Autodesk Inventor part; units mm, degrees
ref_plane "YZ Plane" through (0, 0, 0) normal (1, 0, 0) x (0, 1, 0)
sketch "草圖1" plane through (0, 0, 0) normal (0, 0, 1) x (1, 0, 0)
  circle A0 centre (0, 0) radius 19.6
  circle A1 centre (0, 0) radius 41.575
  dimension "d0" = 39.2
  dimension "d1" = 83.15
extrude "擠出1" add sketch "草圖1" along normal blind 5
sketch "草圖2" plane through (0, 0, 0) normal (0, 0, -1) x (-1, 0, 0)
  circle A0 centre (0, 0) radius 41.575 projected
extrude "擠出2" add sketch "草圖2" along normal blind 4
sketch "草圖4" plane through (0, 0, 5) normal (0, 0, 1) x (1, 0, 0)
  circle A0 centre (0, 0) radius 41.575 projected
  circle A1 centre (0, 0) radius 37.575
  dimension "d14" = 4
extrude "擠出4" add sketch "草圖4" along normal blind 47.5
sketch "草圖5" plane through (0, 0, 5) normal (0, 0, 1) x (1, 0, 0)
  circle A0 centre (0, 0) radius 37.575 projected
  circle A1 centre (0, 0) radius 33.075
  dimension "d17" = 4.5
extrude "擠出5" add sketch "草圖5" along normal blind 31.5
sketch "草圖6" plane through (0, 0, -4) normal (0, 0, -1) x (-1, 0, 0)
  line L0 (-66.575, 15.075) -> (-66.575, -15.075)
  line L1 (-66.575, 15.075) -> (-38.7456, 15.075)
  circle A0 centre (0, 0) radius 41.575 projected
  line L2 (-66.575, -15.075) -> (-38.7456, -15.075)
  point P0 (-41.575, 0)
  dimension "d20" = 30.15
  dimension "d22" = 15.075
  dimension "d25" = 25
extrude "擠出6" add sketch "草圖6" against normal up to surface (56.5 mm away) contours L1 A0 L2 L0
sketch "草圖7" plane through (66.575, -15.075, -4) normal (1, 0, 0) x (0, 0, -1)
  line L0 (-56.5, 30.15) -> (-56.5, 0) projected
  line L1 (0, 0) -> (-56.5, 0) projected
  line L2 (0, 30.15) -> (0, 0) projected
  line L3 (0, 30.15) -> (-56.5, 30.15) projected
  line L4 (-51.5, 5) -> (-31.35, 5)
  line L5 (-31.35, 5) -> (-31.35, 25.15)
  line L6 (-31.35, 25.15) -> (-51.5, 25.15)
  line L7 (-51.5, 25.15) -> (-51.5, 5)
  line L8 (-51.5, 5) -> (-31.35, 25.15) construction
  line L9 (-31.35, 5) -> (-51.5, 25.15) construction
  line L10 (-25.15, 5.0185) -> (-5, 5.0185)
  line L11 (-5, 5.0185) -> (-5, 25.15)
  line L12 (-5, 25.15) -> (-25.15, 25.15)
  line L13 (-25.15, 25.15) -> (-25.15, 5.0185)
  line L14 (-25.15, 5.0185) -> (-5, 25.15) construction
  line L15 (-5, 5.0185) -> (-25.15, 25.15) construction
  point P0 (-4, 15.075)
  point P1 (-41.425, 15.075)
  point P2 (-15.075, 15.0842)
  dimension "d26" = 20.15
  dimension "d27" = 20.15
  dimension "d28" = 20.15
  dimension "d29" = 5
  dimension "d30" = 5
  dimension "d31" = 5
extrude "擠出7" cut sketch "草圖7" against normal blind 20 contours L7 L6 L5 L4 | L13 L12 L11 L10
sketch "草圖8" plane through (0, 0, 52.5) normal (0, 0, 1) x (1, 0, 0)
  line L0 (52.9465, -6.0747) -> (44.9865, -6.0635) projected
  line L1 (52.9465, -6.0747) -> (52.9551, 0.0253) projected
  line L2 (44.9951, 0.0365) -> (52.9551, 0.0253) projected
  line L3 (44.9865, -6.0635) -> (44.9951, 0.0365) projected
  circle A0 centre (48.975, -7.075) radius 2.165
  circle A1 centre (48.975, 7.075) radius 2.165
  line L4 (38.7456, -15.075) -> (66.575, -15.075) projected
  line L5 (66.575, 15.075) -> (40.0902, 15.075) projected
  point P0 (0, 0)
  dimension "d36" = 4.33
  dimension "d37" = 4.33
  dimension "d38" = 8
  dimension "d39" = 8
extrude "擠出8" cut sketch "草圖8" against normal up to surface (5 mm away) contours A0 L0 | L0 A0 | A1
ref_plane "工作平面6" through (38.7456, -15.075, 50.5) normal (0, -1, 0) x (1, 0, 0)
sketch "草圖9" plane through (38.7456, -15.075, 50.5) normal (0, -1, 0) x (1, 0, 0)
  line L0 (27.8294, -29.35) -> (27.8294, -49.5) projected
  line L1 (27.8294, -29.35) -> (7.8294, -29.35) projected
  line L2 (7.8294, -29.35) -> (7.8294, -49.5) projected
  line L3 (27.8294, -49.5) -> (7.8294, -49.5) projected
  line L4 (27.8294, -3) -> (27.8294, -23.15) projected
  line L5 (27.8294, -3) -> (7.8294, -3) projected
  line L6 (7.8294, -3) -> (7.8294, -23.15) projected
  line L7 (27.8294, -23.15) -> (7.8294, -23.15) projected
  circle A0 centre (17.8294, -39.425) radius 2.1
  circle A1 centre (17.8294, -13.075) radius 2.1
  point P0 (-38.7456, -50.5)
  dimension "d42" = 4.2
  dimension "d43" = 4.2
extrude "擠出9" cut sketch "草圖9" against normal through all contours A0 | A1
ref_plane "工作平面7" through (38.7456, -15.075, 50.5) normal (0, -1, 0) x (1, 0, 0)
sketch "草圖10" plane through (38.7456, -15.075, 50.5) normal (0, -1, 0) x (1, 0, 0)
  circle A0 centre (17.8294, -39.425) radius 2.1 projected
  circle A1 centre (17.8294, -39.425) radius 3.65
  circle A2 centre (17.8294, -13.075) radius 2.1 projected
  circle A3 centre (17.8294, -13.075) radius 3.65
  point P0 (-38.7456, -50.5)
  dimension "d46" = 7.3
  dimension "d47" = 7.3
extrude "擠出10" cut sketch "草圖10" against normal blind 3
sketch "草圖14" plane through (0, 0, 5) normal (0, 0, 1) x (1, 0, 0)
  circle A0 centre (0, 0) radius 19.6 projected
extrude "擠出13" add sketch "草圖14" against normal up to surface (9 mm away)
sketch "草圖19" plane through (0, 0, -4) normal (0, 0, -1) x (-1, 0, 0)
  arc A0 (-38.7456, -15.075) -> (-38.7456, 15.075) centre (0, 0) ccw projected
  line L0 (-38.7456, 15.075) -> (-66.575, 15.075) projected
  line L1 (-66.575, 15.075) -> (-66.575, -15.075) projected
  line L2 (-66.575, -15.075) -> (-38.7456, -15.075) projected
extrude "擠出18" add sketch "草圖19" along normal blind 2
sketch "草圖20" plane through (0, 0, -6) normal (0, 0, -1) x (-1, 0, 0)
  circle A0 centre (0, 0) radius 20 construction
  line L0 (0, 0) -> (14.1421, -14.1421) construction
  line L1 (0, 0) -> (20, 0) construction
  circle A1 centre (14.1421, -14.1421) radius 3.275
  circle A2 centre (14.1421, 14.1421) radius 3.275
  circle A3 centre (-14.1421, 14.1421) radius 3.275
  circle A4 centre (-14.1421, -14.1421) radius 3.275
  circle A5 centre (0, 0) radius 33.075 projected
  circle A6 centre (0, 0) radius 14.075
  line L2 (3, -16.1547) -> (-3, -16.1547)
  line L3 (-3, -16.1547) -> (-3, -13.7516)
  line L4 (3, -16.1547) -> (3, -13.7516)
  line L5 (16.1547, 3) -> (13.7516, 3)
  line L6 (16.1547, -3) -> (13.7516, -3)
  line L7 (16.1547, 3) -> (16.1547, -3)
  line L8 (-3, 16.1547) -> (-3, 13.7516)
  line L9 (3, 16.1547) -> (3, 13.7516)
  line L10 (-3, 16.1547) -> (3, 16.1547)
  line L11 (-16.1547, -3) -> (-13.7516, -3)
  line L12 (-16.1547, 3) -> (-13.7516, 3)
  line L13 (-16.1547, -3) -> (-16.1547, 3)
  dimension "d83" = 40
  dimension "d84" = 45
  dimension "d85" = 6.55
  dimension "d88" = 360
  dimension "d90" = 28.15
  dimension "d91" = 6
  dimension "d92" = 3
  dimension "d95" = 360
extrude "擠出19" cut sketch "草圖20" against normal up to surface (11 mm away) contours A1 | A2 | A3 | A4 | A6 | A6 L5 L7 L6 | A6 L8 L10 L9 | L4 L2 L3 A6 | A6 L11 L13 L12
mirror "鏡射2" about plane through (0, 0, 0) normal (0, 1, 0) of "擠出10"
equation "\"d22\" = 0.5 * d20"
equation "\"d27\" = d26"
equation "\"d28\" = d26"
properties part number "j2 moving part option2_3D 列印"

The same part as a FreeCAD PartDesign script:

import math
import FreeCAD as App
import Part
import Sketcher
from FreeCAD import Vector
Q = App.Units.Quantity


def add_polygon(sketch, points):
    """Adds a closed chain of lines whose ends are joined by coincident constraints."""
    first, n = sketch.GeometryCount, len(points)
    for a, b in zip(points, points[1:] + points[:1]):
        sketch.addGeometry(Part.LineSegment(App.Vector(*a, 0), App.Vector(*b, 0)), False)
    for i in range(n):
        sketch.addConstraint(Sketcher.Constraint("Coincident", first + i, 2, first + (i + 1) % n, 1))

doc = App.newDocument("Part")
body = doc.addObject("PartDesign::Body", "Body")

# Sketch on XY plane
sketch1 = body.newObject("Sketcher::SketchObject", "Sketch")
sketch1.AttachmentSupport = (doc.getObject("XY_Plane"), [""])
sketch1.MapMode = "FlatFace"
sketch1.addGeometry(Part.Circle(Vector(0, 0, 0), Vector(0, 0, 1), 42), False)
sketch1.addGeometry(Part.Circle(Vector(0, 0, 0), Vector(0, 0, 1), 20), False)
sketch1.addConstraint(Sketcher.Constraint("Coincident", 0, 3, -1, 1))
sketch1.addConstraint(Sketcher.Constraint("Coincident", 1, 3, -1, 1))
sketch1.addConstraint(Sketcher.Constraint("Diameter", 1, Q("39.2 mm")))
sketch1.addConstraint(Sketcher.Constraint("Diameter", 0, Q("83.15 mm")))
pad1 = body.newObject("PartDesign::Pad", "Pad")
pad1.Profile = sketch1
pad1.Length = 5

# Sketch on XY plane
sketch2 = body.newObject("Sketcher::SketchObject", "Sketch001")
sketch2.AttachmentSupport = (doc.getObject("XY_Plane"), [""])
sketch2.MapMode = "FlatFace"
sketch2.addGeometry(Part.Circle(Vector(0, 0, 0), Vector(0, 0, 1), 42), False)
sketch2.addConstraint(Sketcher.Constraint("Coincident", 0, 3, -1, 1))
sketch2.addConstraint(Sketcher.Constraint("Diameter", 0, Q("83.15 mm")))
pad2 = body.newObject("PartDesign::Pad", "Pad001")
pad2.Profile = sketch2
pad2.Length = 4
pad2.Reversed = True

# Sketch on XY plane
sketch3 = body.newObject("Sketcher::SketchObject", "Sketch002")
sketch3.AttachmentSupport = (doc.getObject("XY_Plane"), [""])
sketch3.MapMode = "FlatFace"
sketch3.AttachmentOffset = App.Placement(Vector(0, 0, 5), App.Rotation())
sketch3.addGeometry(Part.Circle(Vector(0, 0, 0), Vector(0, 0, 1), 42), False)
sketch3.addGeometry(Part.Circle(Vector(0, 0, 0), Vector(0, 0, 1), 38), False)
sketch3.addConstraint(Sketcher.Constraint("Coincident", 0, 3, -1, 1))
sketch3.addConstraint(Sketcher.Constraint("Coincident", 1, 3, -1, 1))
sketch3.addConstraint(Sketcher.Constraint("Diameter", 0, Q("83.15 mm")))
sketch3.addConstraint(Sketcher.Constraint("Diameter", 1, Q("75.15 mm")))
pad3 = body.newObject("PartDesign::Pad", "Pad002")
pad3.Profile = sketch3
pad3.Length = 47.5

# Sketch on XY plane
sketch4 = body.newObject("Sketcher::SketchObject", "Sketch003")
sketch4.AttachmentSupport = (doc.getObject("XY_Plane"), [""])
sketch4.MapMode = "FlatFace"
sketch4.AttachmentOffset = App.Placement(Vector(0, 0, 5), App.Rotation())
sketch4.addGeometry(Part.Circle(Vector(0, 0, 0), Vector(0, 0, 1), 38), False)
sketch4.addGeometry(Part.Circle(Vector(0, 0, 0), Vector(0, 0, 1), 33), False)
sketch4.addConstraint(Sketcher.Constraint("Coincident", 0, 3, -1, 1))
sketch4.addConstraint(Sketcher.Constraint("Coincident", 1, 3, -1, 1))
sketch4.addConstraint(Sketcher.Constraint("Diameter", 0, Q("75.15 mm")))
sketch4.addConstraint(Sketcher.Constraint("Diameter", 1, Q("66.15 mm")))
pad4 = body.newObject("PartDesign::Pad", "Pad003")
pad4.Profile = sketch4
pad4.Length = 31.5

# Sketch on XY plane
sketch5 = body.newObject("Sketcher::SketchObject", "Sketch004")
sketch5.AttachmentSupport = (doc.getObject("XY_Plane"), [""])
sketch5.MapMode = "FlatFace"
sketch5.AttachmentOffset = App.Placement(Vector(0, 0, -4), App.Rotation())
sketch5.addGeometry(Part.LineSegment(Vector(39, 15, 0), Vector(67, 15, 0)), False)
sketch5.addGeometry(Part.LineSegment(Vector(67, 15, 0), Vector(67, -15, 0)), False)
sketch5.addGeometry(Part.LineSegment(Vector(67, -15, 0), Vector(39, -15, 0)), False)
sketch5.addGeometry(Part.ArcOfCircle(Part.Circle(Vector(0, 0, 0), Vector(0, 0, 1), 42), math.radians(-21), math.radians(21)), False)
sketch5.addConstraint(Sketcher.Constraint("Coincident", 0, 2, 1, 1))
sketch5.addConstraint(Sketcher.Constraint("Coincident", 1, 2, 2, 1))
sketch5.addConstraint(Sketcher.Constraint("Coincident", 2, 2, 3, 1))
sketch5.addConstraint(Sketcher.Constraint("Coincident", 3, 2, 0, 1))
sketch5.addConstraint(Sketcher.Constraint("Horizontal", 0))
sketch5.addConstraint(Sketcher.Constraint("Vertical", 1))
sketch5.addConstraint(Sketcher.Constraint("Horizontal", 2))
sketch5.addConstraint(Sketcher.Constraint("Coincident", 3, 3, -1, 1))
sketch5.addConstraint(Sketcher.Constraint("Vertical", 2, 2, 3, 2))
sketch5.addConstraint(Sketcher.Constraint("DistanceY", 1, 2, 1, 1, Q("30.15 mm")))
sketch5.addConstraint(Sketcher.Constraint("Radius", 3, Q("41.575 mm")))
sketch5.addConstraint(Sketcher.Constraint("DistanceX", 0, 1, 0, 2, Q("27.8294 mm")))
pad5 = body.newObject("PartDesign::Pad", "Pad004")
pad5.Profile = sketch5
pad5.Length = 56.5

# Sketch on YZ plane
sketch6 = body.newObject("Sketcher::SketchObject", "Sketch005")
sketch6.AttachmentSupport = (doc.getObject("YZ_Plane"), [""])
sketch6.MapMode = "FlatFace"
sketch6.AttachmentOffset = App.Placement(Vector(0, 0, 66.575), App.Rotation())
add_polygon(sketch6, [(10, 48), (-10, 48), (-10, 27), (10, 27)])  # lines 0-3
add_polygon(sketch6, [(10, 21), (-10, 21), (-10, 1), (10, 1)])  # lines 4-7
sketch6.addConstraint(Sketcher.Constraint("Horizontal", 0))
sketch6.addConstraint(Sketcher.Constraint("Vertical", 1))
sketch6.addConstraint(Sketcher.Constraint("Horizontal", 2))
sketch6.addConstraint(Sketcher.Constraint("Vertical", 3))
sketch6.addConstraint(Sketcher.Constraint("Horizontal", 4))
sketch6.addConstraint(Sketcher.Constraint("Vertical", 5))
sketch6.addConstraint(Sketcher.Constraint("Horizontal", 6))
sketch6.addConstraint(Sketcher.Constraint("Vertical", 7))
sketch6.addConstraint(Sketcher.Constraint("Vertical", 3, 2, 6, 2))
sketch6.addConstraint(Sketcher.Constraint("Equal", 2, 1))
sketch6.addConstraint(Sketcher.Constraint("Equal", 3, 5))
sketch6.addConstraint(Sketcher.Constraint("DistanceX", 0, 2, 0, 1, Q("20.15 mm")))
sketch6.addConstraint(Sketcher.Constraint("DistanceY", -1, 1, 5, 2, Q("1 mm")))
sketch6.addConstraint(Sketcher.Constraint("DistanceY", -1, 1, 0, 2, Q("47.5 mm")))
sketch6.addConstraint(Sketcher.Constraint("DistanceX", 4, 2, 4, 1, Q("20.1315 mm")))
sketch6.addConstraint(Sketcher.Constraint("DistanceX", 0, 2, -1, 1, Q("10.075 mm")))
pocket1 = body.newObject("PartDesign::Pocket", "Pocket")
pocket1.Profile = sketch6
pocket1.Length = 20

# Sketch on XY plane
sketch7 = body.newObject("Sketcher::SketchObject", "Sketch006")
sketch7.AttachmentSupport = (doc.getObject("XY_Plane"), [""])
sketch7.MapMode = "FlatFace"
sketch7.AttachmentOffset = App.Placement(Vector(0, 0, 52.5), App.Rotation())
sketch7.addGeometry(Part.Circle(Vector(49, -7.1, 0), Vector(0, 0, 1), 2.2), False)
sketch7.addGeometry(Part.Circle(Vector(49, 7.1, 0), Vector(0, 0, 1), 2.2), False)
sketch7.addConstraint(Sketcher.Constraint("Equal", 0, 1))
sketch7.addConstraint(Sketcher.Constraint("Symmetric", 0, 3, 1, 3, -1))
sketch7.addConstraint(Sketcher.Constraint("Diameter", 0, Q("4.33 mm")))
sketch7.addConstraint(Sketcher.Constraint("DistanceY", 0, 3, 1, 3, Q("14.15 mm")))
sketch7.addConstraint(Sketcher.Constraint("DistanceX", -1, 1, 0, 3, Q("48.975 mm")))
pocket2 = body.newObject("PartDesign::Pocket", "Pocket001")
pocket2.Profile = sketch7
pocket2.Length = 5

# Sketch on XZ plane
sketch8 = body.newObject("Sketcher::SketchObject", "Sketch007")
sketch8.AttachmentSupport = (doc.getObject("XZ_Plane"), [""])
sketch8.MapMode = "FlatFace"
sketch8.AttachmentOffset = App.Placement(Vector(0, 0, 15.075), App.Rotation())
sketch8.addGeometry(Part.Circle(Vector(56.6, 11.1, 0), Vector(0, 0, 1), 2.1), False)
sketch8.addGeometry(Part.Circle(Vector(56.6, 37.4, 0), Vector(0, 0, 1), 2.1), False)
sketch8.addConstraint(Sketcher.Constraint("Equal", 0, 1))
sketch8.addConstraint(Sketcher.Constraint("Vertical", 0, 3, 1, 3))
sketch8.addConstraint(Sketcher.Constraint("Diameter", 0, Q("4.2 mm")))
sketch8.addConstraint(Sketcher.Constraint("DistanceY", 0, 3, 1, 3, Q("26.35 mm")))
sketch8.addConstraint(Sketcher.Constraint("DistanceX", -1, 1, 0, 3, Q("56.575 mm")))
sketch8.addConstraint(Sketcher.Constraint("DistanceY", -1, 1, 0, 3, Q("11.075 mm")))
pocket3 = body.newObject("PartDesign::Pocket", "Pocket002")
pocket3.Profile = sketch8
pocket3.Type = "ThroughAll"

# Sketch on XZ plane
sketch9 = body.newObject("Sketcher::SketchObject", "Sketch008")
sketch9.AttachmentSupport = (doc.getObject("XZ_Plane"), [""])
sketch9.MapMode = "FlatFace"
sketch9.AttachmentOffset = App.Placement(Vector(0, 0, 15.075), App.Rotation())
sketch9.addGeometry(Part.Circle(Vector(56.6, 11.1, 0), Vector(0, 0, 1), 3.6), False)
sketch9.addGeometry(Part.Circle(Vector(56.6, 11.1, 0), Vector(0, 0, 1), 2.1), False)
sketch9.addGeometry(Part.Circle(Vector(56.6, 37.4, 0), Vector(0, 0, 1), 3.6), False)
sketch9.addGeometry(Part.Circle(Vector(56.6, 37.4, 0), Vector(0, 0, 1), 2.1), False)
sketch9.addConstraint(Sketcher.Constraint("Coincident", 1, 3, 0, 3))
sketch9.addConstraint(Sketcher.Constraint("Coincident", 3, 3, 2, 3))
sketch9.addConstraint(Sketcher.Constraint("Equal", 0, 2))
sketch9.addConstraint(Sketcher.Constraint("Equal", 1, 3))
sketch9.addConstraint(Sketcher.Constraint("Vertical", 1, 3, 2, 3))
sketch9.addConstraint(Sketcher.Constraint("Diameter", 0, Q("7.3 mm")))
sketch9.addConstraint(Sketcher.Constraint("Diameter", 1, Q("4.2 mm")))
sketch9.addConstraint(Sketcher.Constraint("DistanceY", 0, 3, 2, 3, Q("26.35 mm")))
sketch9.addConstraint(Sketcher.Constraint("DistanceX", -1, 1, 0, 3, Q("56.575 mm")))
sketch9.addConstraint(Sketcher.Constraint("DistanceY", -1, 1, 0, 3, Q("11.075 mm")))
pocket4 = body.newObject("PartDesign::Pocket", "Pocket003")
pocket4.Profile = sketch9
pocket4.Length = 3

# Sketch on XY plane
sketch10 = body.newObject("Sketcher::SketchObject", "Sketch009")
sketch10.AttachmentSupport = (doc.getObject("XY_Plane"), [""])
sketch10.MapMode = "FlatFace"
sketch10.AttachmentOffset = App.Placement(Vector(0, 0, 5), App.Rotation())
sketch10.addGeometry(Part.Circle(Vector(0, 0, 0), Vector(0, 0, 1), 20), False)
sketch10.addConstraint(Sketcher.Constraint("Coincident", 0, 3, -1, 1))
sketch10.addConstraint(Sketcher.Constraint("Diameter", 0, Q("39.2 mm")))
pad6 = body.newObject("PartDesign::Pad", "Pad005")
pad6.Profile = sketch10
pad6.Length = 9
pad6.Reversed = True

# Sketch on XY plane
sketch11 = body.newObject("Sketcher::SketchObject", "Sketch010")
sketch11.AttachmentSupport = (doc.getObject("XY_Plane"), [""])
sketch11.MapMode = "FlatFace"
sketch11.AttachmentOffset = App.Placement(Vector(0, 0, -4), App.Rotation())
sketch11.addGeometry(Part.LineSegment(Vector(67, -15, 0), Vector(39, -15, 0)), False)
sketch11.addGeometry(Part.ArcOfCircle(Part.Circle(Vector(0, 0, 0), Vector(0, 0, 1), 42), math.radians(21), math.radians(339)), False)
sketch11.addGeometry(Part.LineSegment(Vector(39, 15, 0), Vector(67, 15, 0)), False)
sketch11.addGeometry(Part.LineSegment(Vector(67, 15, 0), Vector(67, -15, 0)), False)
sketch11.addConstraint(Sketcher.Constraint("Coincident", 0, 2, 1, 2))
sketch11.addConstraint(Sketcher.Constraint("Coincident", 1, 1, 2, 1))
sketch11.addConstraint(Sketcher.Constraint("Coincident", 2, 2, 3, 1))
sketch11.addConstraint(Sketcher.Constraint("Coincident", 3, 2, 0, 1))
sketch11.addConstraint(Sketcher.Constraint("Horizontal", 0))
sketch11.addConstraint(Sketcher.Constraint("Horizontal", 2))
sketch11.addConstraint(Sketcher.Constraint("Vertical", 3))
sketch11.addConstraint(Sketcher.Constraint("Coincident", 1, 3, -1, 1))
sketch11.addConstraint(Sketcher.Constraint("Vertical", 0, 2, 1, 1))
sketch11.addConstraint(Sketcher.Constraint("Radius", 1, Q("41.575 mm")))
sketch11.addConstraint(Sketcher.Constraint("DistanceY", 3, 2, 3, 1, Q("30.15 mm")))
sketch11.addConstraint(Sketcher.Constraint("DistanceX", 0, 2, 0, 1, Q("27.8294 mm")))
pad7 = body.newObject("PartDesign::Pad", "Pad006")
pad7.Profile = sketch11
pad7.Length = 2
pad7.Reversed = True

# Sketch on XY plane
sketch12 = body.newObject("Sketcher::SketchObject", "Sketch011")
sketch12.AttachmentSupport = (doc.getObject("XY_Plane"), [""])
sketch12.MapMode = "FlatFace"
sketch12.AttachmentOffset = App.Placement(Vector(0, 0, -6), App.Rotation())
sketch12.addGeometry(Part.Circle(Vector(-14.1, -14.1, 0), Vector(0, 0, 1), 3.3), False)
sketch12.addGeometry(Part.Circle(Vector(-14.1, 14.1, 0), Vector(0, 0, 1), 3.3), False)
sketch12.addGeometry(Part.Circle(Vector(14.1, 14.1, 0), Vector(0, 0, 1), 3.3), False)
sketch12.addGeometry(Part.Circle(Vector(14.1, -14.1, 0), Vector(0, 0, 1), 3.3), False)
sketch12.addGeometry(Part.ArcOfCircle(Part.Circle(Vector(0, 0, 0), Vector(0, 0, 1), 14.1), math.radians(-168), math.radians(-102)), False)
sketch12.addGeometry(Part.LineSegment(Vector(-13.8, -3, 0), Vector(-16.2, -3, 0)), False)
sketch12.addGeometry(Part.LineSegment(Vector(-16.2, -3, 0), Vector(-16.2, 3, 0)), False)
sketch12.addGeometry(Part.LineSegment(Vector(-16.2, 3, 0), Vector(-13.8, 3, 0)), False)
sketch12.addGeometry(Part.ArcOfCircle(Part.Circle(Vector(0, 0, 0), Vector(0, 0, 1), 14.1), math.radians(102), math.radians(168)), False)
sketch12.addGeometry(Part.LineSegment(Vector(-3, 13.8, 0), Vector(-3, 16.2, 0)), False)
sketch12.addGeometry(Part.LineSegment(Vector(-3, 16.2, 0), Vector(3, 16.2, 0)), False)
sketch12.addGeometry(Part.LineSegment(Vector(3, 16.2, 0), Vector(3, 13.8, 0)), False)
sketch12.addGeometry(Part.ArcOfCircle(Part.Circle(Vector(0, 0, 0), Vector(0, 0, 1), 14.1), math.radians(12), math.radians(78)), False)
sketch12.addGeometry(Part.LineSegment(Vector(13.8, 3, 0), Vector(16.2, 3, 0)), False)
sketch12.addGeometry(Part.LineSegment(Vector(16.2, 3, 0), Vector(16.2, -3, 0)), False)
sketch12.addGeometry(Part.LineSegment(Vector(16.2, -3, 0), Vector(13.8, -3, 0)), False)
sketch12.addGeometry(Part.ArcOfCircle(Part.Circle(Vector(0, 0, 0), Vector(0, 0, 1), 14.1), math.radians(-78), math.radians(-12)), False)
sketch12.addGeometry(Part.LineSegment(Vector(3, -13.8, 0), Vector(3, -16.2, 0)), False)
sketch12.addGeometry(Part.LineSegment(Vector(3, -16.2, 0), Vector(-3, -16.2, 0)), False)
sketch12.addGeometry(Part.LineSegment(Vector(-3, -16.2, 0), Vector(-3, -13.8, 0)), False)
sketch12.addConstraint(Sketcher.Constraint("Coincident", 4, 1, 5, 1))
sketch12.addConstraint(Sketcher.Constraint("Coincident", 5, 2, 6, 1))
sketch12.addConstraint(Sketcher.Constraint("Coincident", 6, 2, 7, 1))
sketch12.addConstraint(Sketcher.Constraint("Coincident", 7, 2, 8, 2))
sketch12.addConstraint(Sketcher.Constraint("Coincident", 8, 1, 9, 1))
sketch12.addConstraint(Sketcher.Constraint("Coincident", 9, 2, 10, 1))
sketch12.addConstraint(Sketcher.Constraint("Coincident", 10, 2, 11, 1))
sketch12.addConstraint(Sketcher.Constraint("Coincident", 11, 2, 12, 2))
sketch12.addConstraint(Sketcher.Constraint("Coincident", 12, 1, 13, 1))
sketch12.addConstraint(Sketcher.Constraint("Coincident", 13, 2, 14, 1))
sketch12.addConstraint(Sketcher.Constraint("Coincident", 14, 2, 15, 1))
sketch12.addConstraint(Sketcher.Constraint("Coincident", 15, 2, 16, 2))
sketch12.addConstraint(Sketcher.Constraint("Coincident", 16, 1, 17, 1))
sketch12.addConstraint(Sketcher.Constraint("Coincident", 17, 2, 18, 1))
sketch12.addConstraint(Sketcher.Constraint("Coincident", 18, 2, 19, 1))
sketch12.addConstraint(Sketcher.Constraint("Coincident", 19, 2, 4, 2))
sketch12.addConstraint(Sketcher.Constraint("Horizontal", 5))
sketch12.addConstraint(Sketcher.Constraint("Vertical", 6))
sketch12.addConstraint(Sketcher.Constraint("Horizontal", 7))
sketch12.addConstraint(Sketcher.Constraint("Vertical", 9))
sketch12.addConstraint(Sketcher.Constraint("Horizontal", 10))
sketch12.addConstraint(Sketcher.Constraint("Vertical", 11))
sketch12.addConstraint(Sketcher.Constraint("Horizontal", 13))
sketch12.addConstraint(Sketcher.Constraint("Vertical", 14))
sketch12.addConstraint(Sketcher.Constraint("Horizontal", 15))
sketch12.addConstraint(Sketcher.Constraint("Vertical", 17))
sketch12.addConstraint(Sketcher.Constraint("Horizontal", 18))
sketch12.addConstraint(Sketcher.Constraint("Vertical", 19))
sketch12.addConstraint(Sketcher.Constraint("Coincident", 4, 3, -1, 1))
sketch12.addConstraint(Sketcher.Constraint("Coincident", 8, 3, -1, 1))
sketch12.addConstraint(Sketcher.Constraint("Coincident", 12, 3, -1, 1))
sketch12.addConstraint(Sketcher.Constraint("Coincident", 16, 3, -1, 1))
sketch12.addConstraint(Sketcher.Constraint("Equal", 0, 1))
sketch12.addConstraint(Sketcher.Constraint("Equal", 1, 2))
sketch12.addConstraint(Sketcher.Constraint("Equal", 2, 3))
sketch12.addConstraint(Sketcher.Constraint("Equal", 4, 8))
sketch12.addConstraint(Sketcher.Constraint("Equal", 8, 12))
sketch12.addConstraint(Sketcher.Constraint("Equal", 12, 16))
sketch12.addConstraint(Sketcher.Constraint("Symmetric", 0, 3, 2, 3, -1, 1))
sketch12.addConstraint(Sketcher.Constraint("Symmetric", 1, 3, 3, 3, -1, 1))
sketch12.addConstraint(Sketcher.Constraint("Symmetric", 5, 2, 13, 2, -1, 1))
sketch12.addConstraint(Sketcher.Constraint("Symmetric", 9, 2, 17, 2, -1, 1))
sketch12.addConstraint(Sketcher.Constraint("Symmetric", 1, 3, 2, 3, -2))
sketch12.addConstraint(Sketcher.Constraint("Horizontal", 8, 1, 11, 2))
sketch12.addConstraint(Sketcher.Constraint("Horizontal", 7, 2, 12, 1))
sketch12.addConstraint(Sketcher.Constraint("Horizontal", 5, 2, 14, 2))
sketch12.addConstraint(Sketcher.Constraint("Horizontal", 16, 1, 19, 2))
sketch12.addConstraint(Sketcher.Constraint("Equal", 18, 6))
sketch12.addConstraint(Sketcher.Constraint("Equal", 15, 9))
sketch12.addConstraint(Sketcher.Constraint("Diameter", 0, Q("6.55 mm")))
sketch12.addConstraint(Sketcher.Constraint("DistanceX", 10, 1, 10, 2, Q("6 mm")))
sketch12.addConstraint(Sketcher.Constraint("Radius", 4, Q("14.075 mm")))
sketch12.addConstraint(Sketcher.Constraint("DistanceX", 5, 2, 5, 1, Q("2.403 mm")))
sketch12.addConstraint(Sketcher.Constraint("DistanceX", 0, 3, -1, 1, Q("14.142 mm")))
sketch12.addConstraint(Sketcher.Constraint("DistanceY", 0, 3, -1, 1, Q("14.142 mm")))
pocket5 = body.newObject("PartDesign::Pocket", "Pocket004")
pocket5.Profile = sketch12
pocket5.Length = 11
pocket5.Reversed = True
doc.recompute()

mirrored = body.newObject("PartDesign::Mirrored", "Mirrored")
mirrored.Originals = [pocket4]
mirrored.MirrorPlane = (doc.getObject("XZ_Plane"), [""])
body.Tip = mirrored

doc.recompute()
